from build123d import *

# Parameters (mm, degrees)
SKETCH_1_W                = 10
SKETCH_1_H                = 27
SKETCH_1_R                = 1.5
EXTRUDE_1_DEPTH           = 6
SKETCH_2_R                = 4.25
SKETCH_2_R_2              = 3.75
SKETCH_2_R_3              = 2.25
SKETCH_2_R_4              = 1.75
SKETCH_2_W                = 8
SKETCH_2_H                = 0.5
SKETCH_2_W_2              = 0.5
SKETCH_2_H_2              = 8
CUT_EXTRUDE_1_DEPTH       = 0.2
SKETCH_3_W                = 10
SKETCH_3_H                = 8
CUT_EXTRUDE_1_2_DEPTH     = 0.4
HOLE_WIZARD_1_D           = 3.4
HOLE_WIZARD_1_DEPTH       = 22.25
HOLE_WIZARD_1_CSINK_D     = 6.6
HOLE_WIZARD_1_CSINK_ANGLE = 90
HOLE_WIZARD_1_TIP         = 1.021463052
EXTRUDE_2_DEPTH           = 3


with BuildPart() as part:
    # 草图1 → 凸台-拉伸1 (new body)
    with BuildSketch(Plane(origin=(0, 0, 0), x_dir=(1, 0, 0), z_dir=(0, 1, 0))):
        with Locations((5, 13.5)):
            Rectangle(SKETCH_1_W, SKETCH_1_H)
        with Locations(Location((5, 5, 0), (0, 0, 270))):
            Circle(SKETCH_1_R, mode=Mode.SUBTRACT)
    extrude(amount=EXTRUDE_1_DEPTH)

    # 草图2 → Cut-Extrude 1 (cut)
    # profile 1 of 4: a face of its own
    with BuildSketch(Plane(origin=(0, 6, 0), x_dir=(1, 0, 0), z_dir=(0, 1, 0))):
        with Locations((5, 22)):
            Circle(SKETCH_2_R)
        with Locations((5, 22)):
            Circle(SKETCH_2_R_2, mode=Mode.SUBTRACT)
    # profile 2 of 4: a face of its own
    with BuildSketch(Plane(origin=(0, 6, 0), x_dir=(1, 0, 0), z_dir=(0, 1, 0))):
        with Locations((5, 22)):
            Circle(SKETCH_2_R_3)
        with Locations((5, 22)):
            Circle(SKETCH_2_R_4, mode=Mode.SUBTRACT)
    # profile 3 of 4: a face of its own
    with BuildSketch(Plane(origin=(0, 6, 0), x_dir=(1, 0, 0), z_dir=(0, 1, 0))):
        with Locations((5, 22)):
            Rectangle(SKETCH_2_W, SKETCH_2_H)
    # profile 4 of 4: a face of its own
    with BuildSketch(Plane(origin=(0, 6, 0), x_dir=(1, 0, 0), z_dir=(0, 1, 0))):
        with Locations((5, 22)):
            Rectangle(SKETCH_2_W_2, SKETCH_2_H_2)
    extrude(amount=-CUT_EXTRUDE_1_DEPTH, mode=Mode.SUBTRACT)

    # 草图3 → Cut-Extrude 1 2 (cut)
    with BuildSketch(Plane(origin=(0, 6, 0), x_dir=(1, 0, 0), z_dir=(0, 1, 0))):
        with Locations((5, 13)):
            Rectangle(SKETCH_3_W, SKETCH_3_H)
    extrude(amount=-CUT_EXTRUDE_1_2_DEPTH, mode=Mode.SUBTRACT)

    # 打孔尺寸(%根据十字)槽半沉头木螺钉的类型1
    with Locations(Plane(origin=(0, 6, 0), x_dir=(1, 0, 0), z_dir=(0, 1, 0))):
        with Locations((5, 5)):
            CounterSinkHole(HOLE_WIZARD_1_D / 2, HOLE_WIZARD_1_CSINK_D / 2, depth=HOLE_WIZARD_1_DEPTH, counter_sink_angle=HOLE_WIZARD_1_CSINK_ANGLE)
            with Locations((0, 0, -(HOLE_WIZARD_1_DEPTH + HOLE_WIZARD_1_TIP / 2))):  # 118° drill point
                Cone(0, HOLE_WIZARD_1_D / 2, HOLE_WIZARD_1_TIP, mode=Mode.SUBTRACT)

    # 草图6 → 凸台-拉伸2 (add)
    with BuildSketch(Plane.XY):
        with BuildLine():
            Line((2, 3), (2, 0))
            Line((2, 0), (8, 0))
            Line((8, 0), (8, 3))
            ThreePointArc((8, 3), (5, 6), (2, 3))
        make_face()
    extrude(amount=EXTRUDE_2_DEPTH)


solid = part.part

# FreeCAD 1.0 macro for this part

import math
import FreeCAD as App
import Part
import Sketcher


def add_polygon(sketch, points):
    """Adds a closed chain of lines whose ends are joined by coincident constraints."""
    first, n = sketch.GeometryCount, len(points)
    for a, b in zip(points, points[1:] + points[:1]):
        sketch.addGeometry(Part.LineSegment(App.Vector(*a, 0), App.Vector(*b, 0)), False)
    for i in range(n):
        sketch.addConstraint(Sketcher.Constraint("Coincident", first + i, 2, first + (i + 1) % n, 1))

doc = App.newDocument("Part")
params = doc.addObject("Spreadsheet::Sheet", "Params")
for row, (alias, value) in enumerate([
    ("sketch1_diameter", "3 mm"),
    ("sketch1_width", "10 mm"),
    ("sketch1_height", "27 mm"),
    ("pad1_length", "6 mm"),
    ("sketch2_diameter", "8.5 mm"),
    ("sketch2_radius", "3.75 mm"),
    ("sketch2_radius2", "2.25 mm"),
    ("sketch2_radius3", "1.75 mm"),
    ("pocket1_length", "0.2 mm"),
    ("sketch3_width", "10 mm"),
    ("sketch3_height", "8 mm"),
    ("pocket2_length", "0.4 mm"),
    ("sketch4_diameter", "3.4 mm"),
    ("hole_diameter", "3.4 mm"),
    ("hole_depth", "22.25 mm"),
    ("hole_csink_diameter", "6.6 mm"),
    ("sketch5_radius", "3 mm"),
    ("sketch5_height", "3 mm"),
    ("pad2_length", "3 mm"),
], start=1):
    params.set(f"A{row}", alias)
    params.set(f"B{row}", "=" + value)
    params.setAlias(f"B{row}", alias)

body = doc.addObject("PartDesign::Body", "Body")

# Sketch on XZ plane
sketch1 = doc.addObject("Sketcher::SketchObject", "Sketch")
body.addObject(sketch1)
sketch1.AttachmentSupport = (doc.XZ_Plane, [""])
sketch1.MapMode = "FlatFace"
add_polygon(sketch1, [(0, -27), (0, 0), (10, 0), (10, -27)])  # lines 0-3
sketch1.addGeometry(Part.Circle(App.Vector(5, -5, 0), App.Vector(0, 0, 1), 1.5), False)  # 4
sketch1.addConstraint([
    Sketcher.Constraint("Vertical", 0),
    Sketcher.Constraint("Horizontal", 1),
    Sketcher.Constraint("Vertical", 2),
    Sketcher.Constraint("Horizontal", 3),
    Sketcher.Constraint("Coincident", 0, 2, -1, 1),
    Sketcher.Constraint("Diameter", 4, 3.0),
    Sketcher.Constraint("DistanceX", 1, 1, 1, 2, 10.0),
    Sketcher.Constraint("DistanceY", 0, 1, 0, 2, 27.0),
    Sketcher.Constraint("DistanceX", -1, 1, 4, 3, 5.0),
    Sketcher.Constraint("DistanceY", 4, 3, -1, 1, 5.0),
])
sketch1.setExpression("Constraints[9]", "Params.sketch1_diameter")
sketch1.setExpression("Constraints[10]", "Params.sketch1_width")
sketch1.setExpression("Constraints[11]", "Params.sketch1_height")
pad1 = doc.addObject("PartDesign::Pad", "Pad")
body.addObject(pad1)
pad1.Profile = sketch1
pad1.setExpression("Length", "Params.pad1_length")
pad1.Reversed = True

# Sketch on XZ plane
sketch2 = doc.addObject("Sketcher::SketchObject", "Sketch001")
body.addObject(sketch2)
sketch2.AttachmentSupport = (doc.XZ_Plane, [""])
sketch2.MapMode = "FlatFace"
sketch2.AttachmentOffset = App.Placement(App.Vector(0, 0, -6), App.Rotation())
sketch2.addGeometry([
    Part.Circle(App.Vector(5, -22, 0), App.Vector(0, 0, 1), 4.2),  # 0
    Part.ArcOfCircle(Part.Circle(App.Vector(5, -22, 0), App.Vector(0, 0, 1), 3.8), math.radians(-86), math.radians(-4)),  # 1
    Part.LineSegment(App.Vector(8.7, -22.2, 0), App.Vector(7.2, -22.2, 0)),  # 2
    Part.ArcOfCircle(Part.Circle(App.Vector(5, -22, 0), App.Vector(0, 0, 1), 2.2), math.radians(-84), math.radians(-6)),  # 3
    Part.LineSegment(App.Vector(5.2, -24.2, 0), App.Vector(5.2, -25.7, 0)),  # 4
    Part.ArcOfCircle(Part.Circle(App.Vector(5, -22, 0), App.Vector(0, 0, 1), 3.8), math.radians(-176), math.radians(-94)),  # 5
    Part.LineSegment(App.Vector(4.8, -25.7, 0), App.Vector(4.8, -24.2, 0)),  # 6
    Part.ArcOfCircle(Part.Circle(App.Vector(5, -22, 0), App.Vector(0, 0, 1), 2.2), math.radians(-174), math.radians(-96)),  # 7
    Part.LineSegment(App.Vector(2.8, -22.2, 0), App.Vector(1.3, -22.2, 0)),  # 8
    Part.ArcOfCircle(Part.Circle(App.Vector(5, -22, 0), App.Vector(0, 0, 1), 3.8), math.radians(94), math.radians(176)),  # 9
    Part.LineSegment(App.Vector(1.3, -21.8, 0), App.Vector(2.8, -21.8, 0)),  # 10
    Part.ArcOfCircle(Part.Circle(App.Vector(5, -22, 0), App.Vector(0, 0, 1), 2.2), math.radians(96), math.radians(174)),  # 11
    Part.LineSegment(App.Vector(4.8, -19.8, 0), App.Vector(4.8, -18.3, 0)),  # 12
    Part.ArcOfCircle(Part.Circle(App.Vector(5, -22, 0), App.Vector(0, 0, 1), 3.8), math.radians(4), math.radians(86)),  # 13
    Part.LineSegment(App.Vector(5.2, -18.3, 0), App.Vector(5.2, -19.8, 0)),  # 14
    Part.ArcOfCircle(Part.Circle(App.Vector(5, -22, 0), App.Vector(0, 0, 1), 2.2), math.radians(6), math.radians(84)),  # 15
    Part.LineSegment(App.Vector(7.2, -21.8, 0), App.Vector(8.7, -21.8, 0)),  # 16
    Part.ArcOfCircle(Part.Circle(App.Vector(5, -22, 0), App.Vector(0, 0, 1), 1.8), math.radians(-82), math.radians(-8)),  # 17
    Part.LineSegment(App.Vector(6.7, -22.2, 0), App.Vector(5.2, -22.2, 0)),  # 18
    Part.LineSegment(App.Vector(5.2, -22.2, 0), App.Vector(5.2, -23.7, 0)),  # 19
    Part.LineSegment(App.Vector(4.8, -23.7, 0), App.Vector(4.8, -22.2, 0)),  # 20
    Part.LineSegment(App.Vector(4.8, -22.2, 0), App.Vector(3.3, -22.2, 0)),  # 21
    Part.ArcOfCircle(Part.Circle(App.Vector(5, -22, 0), App.Vector(0, 0, 1), 1.8), math.radians(-172), math.radians(-98)),  # 22
    Part.LineSegment(App.Vector(3.3, -21.8, 0), App.Vector(4.8, -21.8, 0)),  # 23
    Part.LineSegment(App.Vector(4.8, -21.8, 0), App.Vector(4.8, -20.3, 0)),  # 24
    Part.ArcOfCircle(Part.Circle(App.Vector(5, -22, 0), App.Vector(0, 0, 1), 1.8), math.radians(98), math.radians(172)),  # 25
    Part.ArcOfCircle(Part.Circle(App.Vector(5, -22, 0), App.Vector(0, 0, 1), 1.8), math.radians(8), math.radians(82)),  # 26
    Part.LineSegment(App.Vector(5.2, -20.3, 0), App.Vector(5.2, -21.8, 0)),  # 27
    Part.LineSegment(App.Vector(5.2, -21.8, 0), App.Vector(6.7, -21.8, 0)),  # 28
], False)
sketch2.addConstraint([
    Sketcher.Constraint("Coincident", 1, 2, 2, 1),
    Sketcher.Constraint("Coincident", 2, 2, 3, 2),
    Sketcher.Constraint("Coincident", 3, 1, 4, 1),
    Sketcher.Constraint("Coincident", 4, 2, 1, 1),
    Sketcher.Constraint("Coincident", 5, 2, 6, 1),
    Sketcher.Constraint("Coincident", 6, 2, 7, 2),
    Sketcher.Constraint("Coincident", 7, 1, 8, 1),
    Sketcher.Constraint("Coincident", 8, 2, 5, 1),
    Sketcher.Constraint("Coincident", 9, 2, 10, 1),
    Sketcher.Constraint("Coincident", 10, 2, 11, 2),
    Sketcher.Constraint("Coincident", 11, 1, 12, 1),
    Sketcher.Constraint("Coincident", 12, 2, 9, 1),
    Sketcher.Constraint("Coincident", 13, 2, 14, 1),
    Sketcher.Constraint("Coincident", 14, 2, 15, 2),
    Sketcher.Constraint("Coincident", 15, 1, 16, 1),
    Sketcher.Constraint("Coincident", 16, 2, 13, 1),
    Sketcher.Constraint("Coincident", 17, 2, 18, 1),
    Sketcher.Constraint("Coincident", 18, 2, 19, 1),
    Sketcher.Constraint("Coincident", 19, 2, 17, 1),
    Sketcher.Constraint("Coincident", 20, 2, 21, 1),
    Sketcher.Constraint("Coincident", 21, 2, 22, 1),
    Sketcher.Constraint("Coincident", 22, 2, 20, 1),
    Sketcher.Constraint("Coincident", 23, 2, 24, 1),
    Sketcher.Constraint("Coincident", 24, 2, 25, 1),
    Sketcher.Constraint("Coincident", 25, 2, 23, 1),
    Sketcher.Constraint("Coincident", 26, 2, 27, 1),
    Sketcher.Constraint("Coincident", 27, 2, 28, 1),
    Sketcher.Constraint("Coincident", 28, 2, 26, 1),
    Sketcher.Constraint("Horizontal", 2),
    Sketcher.Constraint("Vertical", 4),
    Sketcher.Constraint("Vertical", 6),
    Sketcher.Constraint("Horizontal", 8),
    Sketcher.Constraint("Horizontal", 10),
    Sketcher.Constraint("Vertical", 12),
    Sketcher.Constraint("Vertical", 14),
    Sketcher.Constraint("Horizontal", 16),
    Sketcher.Constraint("Horizontal", 18),
    Sketcher.Constraint("Vertical", 19),
    Sketcher.Constraint("Vertical", 20),
    Sketcher.Constraint("Horizontal", 21),
    Sketcher.Constraint("Horizontal", 23),
    Sketcher.Constraint("Vertical", 24),
    Sketcher.Constraint("Vertical", 27),
    Sketcher.Constraint("Horizontal", 28),
    Sketcher.Constraint("Coincident", 1, 3, 0, 3),
    Sketcher.Constraint("Coincident", 3, 3, 0, 3),
    Sketcher.Constraint("Coincident", 5, 3, 0, 3),
    Sketcher.Constraint("Coincident", 7, 3, 0, 3),
    Sketcher.Constraint("Coincident", 9, 3, 0, 3),
    Sketcher.Constraint("Coincident", 11, 3, 0, 3),
    Sketcher.Constraint("Coincident", 13, 3, 0, 3),
    Sketcher.Constraint("Coincident", 15, 3, 0, 3),
    Sketcher.Constraint("Coincident", 17, 3, 0, 3),
    Sketcher.Constraint("Coincident", 22, 3, 0, 3),
    Sketcher.Constraint("Coincident", 25, 3, 0, 3),
    Sketcher.Constraint("Coincident", 26, 3, 0, 3),
    Sketcher.Constraint("Equal", 1, 5),
    Sketcher.Constraint("Equal", 3, 7),
    Sketcher.Constraint("Equal", 5, 9),
    Sketcher.Constraint("Equal", 7, 11),
    Sketcher.Constraint("Equal", 9, 13),
    Sketcher.Constraint("Equal", 11, 15),
    Sketcher.Constraint("Equal", 17, 22),
    Sketcher.Constraint("Equal", 22, 25),
    Sketcher.Constraint("Equal", 25, 26),
    Sketcher.Constraint("Horizontal", 4, 2, 5, 2),
    Sketcher.Constraint("Horizontal", 2, 2, 7, 1),
    Sketcher.Constraint("Horizontal", 12, 2, 13, 2),
    Sketcher.Constraint("Horizontal", 10, 2, 15, 1),
    Sketcher.Constraint("Horizontal", 8, 2, 17, 2),
    Sketcher.Constraint("Horizontal", 18, 2, 20, 2),
    Sketcher.Constraint("Horizontal", 19, 2, 22, 2),
    Sketcher.Constraint("Horizontal", 16, 2, 23, 2),
    Sketcher.Constraint("Horizontal", 24, 2, 26, 2),
    Sketcher.Constraint("Horizontal", 25, 2, 27, 2),
    Sketcher.Constraint("Vertical", 8, 2, 9, 2),
    Sketcher.Constraint("Vertical", 6, 2, 11, 1),
    Sketcher.Constraint("Vertical", 14, 2, 18, 2),
    Sketcher.Constraint("Vertical", 22, 2, 23, 2),
    Sketcher.Constraint("Equal", 16, 4),
    Sketcher.Constraint("Diameter", 0, 8.5),
    Sketcher.Constraint("Radius", 1, 3.75),
    Sketcher.Constraint("Radius", 3, 2.25),
    Sketcher.Constraint("Radius", 17, 1.75),
    Sketcher.Constraint("DistanceX", -1, 1, 0, 3, 5.0),
    Sketcher.Constraint("DistanceY", 0, 3, -1, 1, 22.0),
    Sketcher.Constraint("DistanceX", 5, 2, 4, 2, 0.5),
])
sketch2.setExpression("Constraints[80]", "Params.sketch2_diameter")
sketch2.setExpression("Constraints[81]", "Params.sketch2_radius")
sketch2.setExpression("Constraints[82]", "Params.sketch2_radius2")
sketch2.setExpression("Constraints[83]", "Params.sketch2_radius3")
pocket1 = doc.addObject("PartDesign::Pocket", "Pocket")
body.addObject(pocket1)
pocket1.Profile = sketch2
pocket1.setExpression("Length", "Params.pocket1_length")
pocket1.Reversed = True

# Sketch on XZ plane
sketch3 = doc.addObject("Sketcher::SketchObject", "Sketch002")
body.addObject(sketch3)
sketch3.AttachmentSupport = (doc.XZ_Plane, [""])
sketch3.MapMode = "FlatFace"
sketch3.AttachmentOffset = App.Placement(App.Vector(0, 0, -6), App.Rotation())
add_polygon(sketch3, [(0, -17), (0, -9), (10, -9), (10, -17)])  # lines 0-3
sketch3.addConstraint([
    Sketcher.Constraint("Vertical", 0),
    Sketcher.Constraint("Horizontal", 1),
    Sketcher.Constraint("Vertical", 2),
    Sketcher.Constraint("Horizontal", 3),
    Sketcher.Constraint("PointOnObject", 0, 2, -2),
    Sketcher.Constraint("DistanceX", 1, 1, 1, 2, 10.0),
    Sketcher.Constraint("DistanceY", 0, 1, 0, 2, 8.0),
    Sketcher.Constraint("DistanceY", 0, 2, -1, 1, 9.0),
])
sketch3.setExpression("Constraints[9]", "Params.sketch3_width")
sketch3.setExpression("Constraints[10]", "Params.sketch3_height")
pocket2 = doc.addObject("PartDesign::Pocket", "Pocket001")
body.addObject(pocket2)
pocket2.Profile = sketch3
pocket2.setExpression("Length", "Params.pocket2_length")
pocket2.Reversed = True

# Sketch on XZ plane
sketch4 = doc.addObject("Sketcher::SketchObject", "Sketch003")
body.addObject(sketch4)
sketch4.AttachmentSupport = (doc.XZ_Plane, [""])
sketch4.MapMode = "FlatFace"
sketch4.AttachmentOffset = App.Placement(App.Vector(0, 0, -6), App.Rotation())
sketch4.addGeometry(Part.Circle(App.Vector(5, -5, 0), App.Vector(0, 0, 1), 1.7), False)
sketch4.addConstraint([
    Sketcher.Constraint("Diameter", 0, 3.4),
    Sketcher.Constraint("DistanceX", -1, 1, 0, 3, 5.0),
    Sketcher.Constraint("DistanceY", 0, 3, -1, 1, 5.0),
])
sketch4.setExpression("Constraints[0]", "Params.sketch4_diameter")
doc.recompute()
hole = doc.addObject("PartDesign::Hole", "Hole")
body.addObject(hole)
hole.Profile = sketch4
hole.ThreadType = "None"
hole.setExpression("Diameter", "Params.hole_diameter")
hole.DepthType = "Dimension"
hole.setExpression("Depth", "Params.hole_depth")
hole.DrillPoint = "Angled"
hole.DrillPointAngle = 118
hole.HoleCutType = "Countersink"
hole.setExpression("HoleCutDiameter", "Params.hole_csink_diameter")
hole.HoleCutCountersinkAngle = 90
hole.Reversed = True

# Sketch on XY plane
sketch5 = doc.addObject("Sketcher::SketchObject", "Sketch004")
body.addObject(sketch5)
sketch5.AttachmentSupport = (doc.XY_Plane, [""])
sketch5.MapMode = "FlatFace"
sketch5.addGeometry([
    Part.LineSegment(App.Vector(2, 3, 0), App.Vector(2, 0, 0)),
    Part.LineSegment(App.Vector(2, 0, 0), App.Vector(8, 0, 0)),
    Part.LineSegment(App.Vector(8, 0, 0), App.Vector(8, 3, 0)),
    Part.ArcOfCircle(Part.Circle(App.Vector(5, 3, 0), App.Vector(0, 0, 1), 3), math.radians(0), math.radians(180)),
], False)
sketch5.addConstraint([
    Sketcher.Constraint("Coincident", 0, 2, 1, 1),
    Sketcher.Constraint("Coincident", 1, 2, 2, 1),
    Sketcher.Constraint("Tangent", 2, 2, 3, 1),
    Sketcher.Constraint("Tangent", 3, 2, 0, 1),
    Sketcher.Constraint("Vertical", 0),
    Sketcher.Constraint("Horizontal", 1),
    Sketcher.Constraint("Vertical", 2),
    Sketcher.Constraint("PointOnObject", 0, 2, -1),
    Sketcher.Constraint("Radius", 3, 3.0),
    Sketcher.Constraint("DistanceY", 0, 2, 0, 1, 3.0),
    Sketcher.Constraint("DistanceX", -1, 1, 3, 3, 5.0),
])
sketch5.setExpression("Constraints[8]", "Params.sketch5_radius")
sketch5.setExpression("Constraints[9]", "Params.sketch5_height")
pad2 = doc.addObject("PartDesign::Pad", "Pad001")
body.addObject(pad2)
pad2.Profile = sketch5
pad2.setExpression("Length", "Params.pad2_length")

doc.recompute()
